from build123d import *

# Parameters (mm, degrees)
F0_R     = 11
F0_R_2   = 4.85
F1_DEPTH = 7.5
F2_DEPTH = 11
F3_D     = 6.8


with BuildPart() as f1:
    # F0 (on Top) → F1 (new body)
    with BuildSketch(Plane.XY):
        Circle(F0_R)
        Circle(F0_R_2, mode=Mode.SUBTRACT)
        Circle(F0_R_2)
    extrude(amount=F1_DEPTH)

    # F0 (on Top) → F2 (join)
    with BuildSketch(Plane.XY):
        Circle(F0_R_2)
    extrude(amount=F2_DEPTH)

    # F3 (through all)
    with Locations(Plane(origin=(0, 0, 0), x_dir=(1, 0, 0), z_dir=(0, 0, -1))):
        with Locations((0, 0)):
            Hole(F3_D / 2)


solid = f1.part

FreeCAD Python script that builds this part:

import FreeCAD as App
import Part
import Sketcher
from FreeCAD import Vector

doc = App.newDocument("Part")
body = doc.addObject("PartDesign::Body", "Body")

sketch1 = body.newObject("Sketcher::SketchObject", "Sketch")
sketch1.AttachmentSupport = (doc.getObject("XY_Plane"), [""])
sketch1.MapMode = "FlatFace"
sketch1.addGeometry(Part.Circle(Vector(0, 0, 0), Vector(0, 0, 1), 11), False)
sketch1.addConstraint([
    Sketcher.Constraint("Coincident", 0, 3, -1, 1),
    Sketcher.Constraint("Diameter", 0, 22.0),
])
pad1 = body.newObject("PartDesign::Pad", "Pad")
pad1.Profile = sketch1
pad1.Length = 7.5

sketch2 = body.newObject("Sketcher::SketchObject", "Sketch001")
sketch2.AttachmentSupport = (doc.getObject("XY_Plane"), [""])
sketch2.MapMode = "FlatFace"
sketch2.addGeometry(Part.Circle(Vector(0, 0, 0), Vector(0, 0, 1), 4.85), False)
sketch2.addConstraint([
    Sketcher.Constraint("Coincident", 0, 3, -1, 1),
    Sketcher.Constraint("Diameter", 0, 9.7),
])
pad2 = body.newObject("PartDesign::Pad", "Pad001")
pad2.Profile = sketch2
pad2.Length = 11

sketch3 = body.newObject("Sketcher::SketchObject", "Sketch002")
sketch3.AttachmentSupport = (doc.getObject("XY_Plane"), [""])
sketch3.MapMode = "FlatFace"
sketch3.addGeometry(Part.Circle(Vector(0, 0, 0), Vector(0, 0, 1), 3.4), False)
sketch3.addConstraint([
    Sketcher.Constraint("Coincident", 0, 3, -1, 1),
    Sketcher.Constraint("Diameter", 0, 6.8),
])
doc.recompute()
hole = body.newObject("PartDesign::Hole", "Hole")
hole.Profile = sketch3
hole.ThreadType = "None"
hole.Diameter = 6.8
hole.DepthType = "ThroughAll"
hole.Reversed = True

doc.recompute()
